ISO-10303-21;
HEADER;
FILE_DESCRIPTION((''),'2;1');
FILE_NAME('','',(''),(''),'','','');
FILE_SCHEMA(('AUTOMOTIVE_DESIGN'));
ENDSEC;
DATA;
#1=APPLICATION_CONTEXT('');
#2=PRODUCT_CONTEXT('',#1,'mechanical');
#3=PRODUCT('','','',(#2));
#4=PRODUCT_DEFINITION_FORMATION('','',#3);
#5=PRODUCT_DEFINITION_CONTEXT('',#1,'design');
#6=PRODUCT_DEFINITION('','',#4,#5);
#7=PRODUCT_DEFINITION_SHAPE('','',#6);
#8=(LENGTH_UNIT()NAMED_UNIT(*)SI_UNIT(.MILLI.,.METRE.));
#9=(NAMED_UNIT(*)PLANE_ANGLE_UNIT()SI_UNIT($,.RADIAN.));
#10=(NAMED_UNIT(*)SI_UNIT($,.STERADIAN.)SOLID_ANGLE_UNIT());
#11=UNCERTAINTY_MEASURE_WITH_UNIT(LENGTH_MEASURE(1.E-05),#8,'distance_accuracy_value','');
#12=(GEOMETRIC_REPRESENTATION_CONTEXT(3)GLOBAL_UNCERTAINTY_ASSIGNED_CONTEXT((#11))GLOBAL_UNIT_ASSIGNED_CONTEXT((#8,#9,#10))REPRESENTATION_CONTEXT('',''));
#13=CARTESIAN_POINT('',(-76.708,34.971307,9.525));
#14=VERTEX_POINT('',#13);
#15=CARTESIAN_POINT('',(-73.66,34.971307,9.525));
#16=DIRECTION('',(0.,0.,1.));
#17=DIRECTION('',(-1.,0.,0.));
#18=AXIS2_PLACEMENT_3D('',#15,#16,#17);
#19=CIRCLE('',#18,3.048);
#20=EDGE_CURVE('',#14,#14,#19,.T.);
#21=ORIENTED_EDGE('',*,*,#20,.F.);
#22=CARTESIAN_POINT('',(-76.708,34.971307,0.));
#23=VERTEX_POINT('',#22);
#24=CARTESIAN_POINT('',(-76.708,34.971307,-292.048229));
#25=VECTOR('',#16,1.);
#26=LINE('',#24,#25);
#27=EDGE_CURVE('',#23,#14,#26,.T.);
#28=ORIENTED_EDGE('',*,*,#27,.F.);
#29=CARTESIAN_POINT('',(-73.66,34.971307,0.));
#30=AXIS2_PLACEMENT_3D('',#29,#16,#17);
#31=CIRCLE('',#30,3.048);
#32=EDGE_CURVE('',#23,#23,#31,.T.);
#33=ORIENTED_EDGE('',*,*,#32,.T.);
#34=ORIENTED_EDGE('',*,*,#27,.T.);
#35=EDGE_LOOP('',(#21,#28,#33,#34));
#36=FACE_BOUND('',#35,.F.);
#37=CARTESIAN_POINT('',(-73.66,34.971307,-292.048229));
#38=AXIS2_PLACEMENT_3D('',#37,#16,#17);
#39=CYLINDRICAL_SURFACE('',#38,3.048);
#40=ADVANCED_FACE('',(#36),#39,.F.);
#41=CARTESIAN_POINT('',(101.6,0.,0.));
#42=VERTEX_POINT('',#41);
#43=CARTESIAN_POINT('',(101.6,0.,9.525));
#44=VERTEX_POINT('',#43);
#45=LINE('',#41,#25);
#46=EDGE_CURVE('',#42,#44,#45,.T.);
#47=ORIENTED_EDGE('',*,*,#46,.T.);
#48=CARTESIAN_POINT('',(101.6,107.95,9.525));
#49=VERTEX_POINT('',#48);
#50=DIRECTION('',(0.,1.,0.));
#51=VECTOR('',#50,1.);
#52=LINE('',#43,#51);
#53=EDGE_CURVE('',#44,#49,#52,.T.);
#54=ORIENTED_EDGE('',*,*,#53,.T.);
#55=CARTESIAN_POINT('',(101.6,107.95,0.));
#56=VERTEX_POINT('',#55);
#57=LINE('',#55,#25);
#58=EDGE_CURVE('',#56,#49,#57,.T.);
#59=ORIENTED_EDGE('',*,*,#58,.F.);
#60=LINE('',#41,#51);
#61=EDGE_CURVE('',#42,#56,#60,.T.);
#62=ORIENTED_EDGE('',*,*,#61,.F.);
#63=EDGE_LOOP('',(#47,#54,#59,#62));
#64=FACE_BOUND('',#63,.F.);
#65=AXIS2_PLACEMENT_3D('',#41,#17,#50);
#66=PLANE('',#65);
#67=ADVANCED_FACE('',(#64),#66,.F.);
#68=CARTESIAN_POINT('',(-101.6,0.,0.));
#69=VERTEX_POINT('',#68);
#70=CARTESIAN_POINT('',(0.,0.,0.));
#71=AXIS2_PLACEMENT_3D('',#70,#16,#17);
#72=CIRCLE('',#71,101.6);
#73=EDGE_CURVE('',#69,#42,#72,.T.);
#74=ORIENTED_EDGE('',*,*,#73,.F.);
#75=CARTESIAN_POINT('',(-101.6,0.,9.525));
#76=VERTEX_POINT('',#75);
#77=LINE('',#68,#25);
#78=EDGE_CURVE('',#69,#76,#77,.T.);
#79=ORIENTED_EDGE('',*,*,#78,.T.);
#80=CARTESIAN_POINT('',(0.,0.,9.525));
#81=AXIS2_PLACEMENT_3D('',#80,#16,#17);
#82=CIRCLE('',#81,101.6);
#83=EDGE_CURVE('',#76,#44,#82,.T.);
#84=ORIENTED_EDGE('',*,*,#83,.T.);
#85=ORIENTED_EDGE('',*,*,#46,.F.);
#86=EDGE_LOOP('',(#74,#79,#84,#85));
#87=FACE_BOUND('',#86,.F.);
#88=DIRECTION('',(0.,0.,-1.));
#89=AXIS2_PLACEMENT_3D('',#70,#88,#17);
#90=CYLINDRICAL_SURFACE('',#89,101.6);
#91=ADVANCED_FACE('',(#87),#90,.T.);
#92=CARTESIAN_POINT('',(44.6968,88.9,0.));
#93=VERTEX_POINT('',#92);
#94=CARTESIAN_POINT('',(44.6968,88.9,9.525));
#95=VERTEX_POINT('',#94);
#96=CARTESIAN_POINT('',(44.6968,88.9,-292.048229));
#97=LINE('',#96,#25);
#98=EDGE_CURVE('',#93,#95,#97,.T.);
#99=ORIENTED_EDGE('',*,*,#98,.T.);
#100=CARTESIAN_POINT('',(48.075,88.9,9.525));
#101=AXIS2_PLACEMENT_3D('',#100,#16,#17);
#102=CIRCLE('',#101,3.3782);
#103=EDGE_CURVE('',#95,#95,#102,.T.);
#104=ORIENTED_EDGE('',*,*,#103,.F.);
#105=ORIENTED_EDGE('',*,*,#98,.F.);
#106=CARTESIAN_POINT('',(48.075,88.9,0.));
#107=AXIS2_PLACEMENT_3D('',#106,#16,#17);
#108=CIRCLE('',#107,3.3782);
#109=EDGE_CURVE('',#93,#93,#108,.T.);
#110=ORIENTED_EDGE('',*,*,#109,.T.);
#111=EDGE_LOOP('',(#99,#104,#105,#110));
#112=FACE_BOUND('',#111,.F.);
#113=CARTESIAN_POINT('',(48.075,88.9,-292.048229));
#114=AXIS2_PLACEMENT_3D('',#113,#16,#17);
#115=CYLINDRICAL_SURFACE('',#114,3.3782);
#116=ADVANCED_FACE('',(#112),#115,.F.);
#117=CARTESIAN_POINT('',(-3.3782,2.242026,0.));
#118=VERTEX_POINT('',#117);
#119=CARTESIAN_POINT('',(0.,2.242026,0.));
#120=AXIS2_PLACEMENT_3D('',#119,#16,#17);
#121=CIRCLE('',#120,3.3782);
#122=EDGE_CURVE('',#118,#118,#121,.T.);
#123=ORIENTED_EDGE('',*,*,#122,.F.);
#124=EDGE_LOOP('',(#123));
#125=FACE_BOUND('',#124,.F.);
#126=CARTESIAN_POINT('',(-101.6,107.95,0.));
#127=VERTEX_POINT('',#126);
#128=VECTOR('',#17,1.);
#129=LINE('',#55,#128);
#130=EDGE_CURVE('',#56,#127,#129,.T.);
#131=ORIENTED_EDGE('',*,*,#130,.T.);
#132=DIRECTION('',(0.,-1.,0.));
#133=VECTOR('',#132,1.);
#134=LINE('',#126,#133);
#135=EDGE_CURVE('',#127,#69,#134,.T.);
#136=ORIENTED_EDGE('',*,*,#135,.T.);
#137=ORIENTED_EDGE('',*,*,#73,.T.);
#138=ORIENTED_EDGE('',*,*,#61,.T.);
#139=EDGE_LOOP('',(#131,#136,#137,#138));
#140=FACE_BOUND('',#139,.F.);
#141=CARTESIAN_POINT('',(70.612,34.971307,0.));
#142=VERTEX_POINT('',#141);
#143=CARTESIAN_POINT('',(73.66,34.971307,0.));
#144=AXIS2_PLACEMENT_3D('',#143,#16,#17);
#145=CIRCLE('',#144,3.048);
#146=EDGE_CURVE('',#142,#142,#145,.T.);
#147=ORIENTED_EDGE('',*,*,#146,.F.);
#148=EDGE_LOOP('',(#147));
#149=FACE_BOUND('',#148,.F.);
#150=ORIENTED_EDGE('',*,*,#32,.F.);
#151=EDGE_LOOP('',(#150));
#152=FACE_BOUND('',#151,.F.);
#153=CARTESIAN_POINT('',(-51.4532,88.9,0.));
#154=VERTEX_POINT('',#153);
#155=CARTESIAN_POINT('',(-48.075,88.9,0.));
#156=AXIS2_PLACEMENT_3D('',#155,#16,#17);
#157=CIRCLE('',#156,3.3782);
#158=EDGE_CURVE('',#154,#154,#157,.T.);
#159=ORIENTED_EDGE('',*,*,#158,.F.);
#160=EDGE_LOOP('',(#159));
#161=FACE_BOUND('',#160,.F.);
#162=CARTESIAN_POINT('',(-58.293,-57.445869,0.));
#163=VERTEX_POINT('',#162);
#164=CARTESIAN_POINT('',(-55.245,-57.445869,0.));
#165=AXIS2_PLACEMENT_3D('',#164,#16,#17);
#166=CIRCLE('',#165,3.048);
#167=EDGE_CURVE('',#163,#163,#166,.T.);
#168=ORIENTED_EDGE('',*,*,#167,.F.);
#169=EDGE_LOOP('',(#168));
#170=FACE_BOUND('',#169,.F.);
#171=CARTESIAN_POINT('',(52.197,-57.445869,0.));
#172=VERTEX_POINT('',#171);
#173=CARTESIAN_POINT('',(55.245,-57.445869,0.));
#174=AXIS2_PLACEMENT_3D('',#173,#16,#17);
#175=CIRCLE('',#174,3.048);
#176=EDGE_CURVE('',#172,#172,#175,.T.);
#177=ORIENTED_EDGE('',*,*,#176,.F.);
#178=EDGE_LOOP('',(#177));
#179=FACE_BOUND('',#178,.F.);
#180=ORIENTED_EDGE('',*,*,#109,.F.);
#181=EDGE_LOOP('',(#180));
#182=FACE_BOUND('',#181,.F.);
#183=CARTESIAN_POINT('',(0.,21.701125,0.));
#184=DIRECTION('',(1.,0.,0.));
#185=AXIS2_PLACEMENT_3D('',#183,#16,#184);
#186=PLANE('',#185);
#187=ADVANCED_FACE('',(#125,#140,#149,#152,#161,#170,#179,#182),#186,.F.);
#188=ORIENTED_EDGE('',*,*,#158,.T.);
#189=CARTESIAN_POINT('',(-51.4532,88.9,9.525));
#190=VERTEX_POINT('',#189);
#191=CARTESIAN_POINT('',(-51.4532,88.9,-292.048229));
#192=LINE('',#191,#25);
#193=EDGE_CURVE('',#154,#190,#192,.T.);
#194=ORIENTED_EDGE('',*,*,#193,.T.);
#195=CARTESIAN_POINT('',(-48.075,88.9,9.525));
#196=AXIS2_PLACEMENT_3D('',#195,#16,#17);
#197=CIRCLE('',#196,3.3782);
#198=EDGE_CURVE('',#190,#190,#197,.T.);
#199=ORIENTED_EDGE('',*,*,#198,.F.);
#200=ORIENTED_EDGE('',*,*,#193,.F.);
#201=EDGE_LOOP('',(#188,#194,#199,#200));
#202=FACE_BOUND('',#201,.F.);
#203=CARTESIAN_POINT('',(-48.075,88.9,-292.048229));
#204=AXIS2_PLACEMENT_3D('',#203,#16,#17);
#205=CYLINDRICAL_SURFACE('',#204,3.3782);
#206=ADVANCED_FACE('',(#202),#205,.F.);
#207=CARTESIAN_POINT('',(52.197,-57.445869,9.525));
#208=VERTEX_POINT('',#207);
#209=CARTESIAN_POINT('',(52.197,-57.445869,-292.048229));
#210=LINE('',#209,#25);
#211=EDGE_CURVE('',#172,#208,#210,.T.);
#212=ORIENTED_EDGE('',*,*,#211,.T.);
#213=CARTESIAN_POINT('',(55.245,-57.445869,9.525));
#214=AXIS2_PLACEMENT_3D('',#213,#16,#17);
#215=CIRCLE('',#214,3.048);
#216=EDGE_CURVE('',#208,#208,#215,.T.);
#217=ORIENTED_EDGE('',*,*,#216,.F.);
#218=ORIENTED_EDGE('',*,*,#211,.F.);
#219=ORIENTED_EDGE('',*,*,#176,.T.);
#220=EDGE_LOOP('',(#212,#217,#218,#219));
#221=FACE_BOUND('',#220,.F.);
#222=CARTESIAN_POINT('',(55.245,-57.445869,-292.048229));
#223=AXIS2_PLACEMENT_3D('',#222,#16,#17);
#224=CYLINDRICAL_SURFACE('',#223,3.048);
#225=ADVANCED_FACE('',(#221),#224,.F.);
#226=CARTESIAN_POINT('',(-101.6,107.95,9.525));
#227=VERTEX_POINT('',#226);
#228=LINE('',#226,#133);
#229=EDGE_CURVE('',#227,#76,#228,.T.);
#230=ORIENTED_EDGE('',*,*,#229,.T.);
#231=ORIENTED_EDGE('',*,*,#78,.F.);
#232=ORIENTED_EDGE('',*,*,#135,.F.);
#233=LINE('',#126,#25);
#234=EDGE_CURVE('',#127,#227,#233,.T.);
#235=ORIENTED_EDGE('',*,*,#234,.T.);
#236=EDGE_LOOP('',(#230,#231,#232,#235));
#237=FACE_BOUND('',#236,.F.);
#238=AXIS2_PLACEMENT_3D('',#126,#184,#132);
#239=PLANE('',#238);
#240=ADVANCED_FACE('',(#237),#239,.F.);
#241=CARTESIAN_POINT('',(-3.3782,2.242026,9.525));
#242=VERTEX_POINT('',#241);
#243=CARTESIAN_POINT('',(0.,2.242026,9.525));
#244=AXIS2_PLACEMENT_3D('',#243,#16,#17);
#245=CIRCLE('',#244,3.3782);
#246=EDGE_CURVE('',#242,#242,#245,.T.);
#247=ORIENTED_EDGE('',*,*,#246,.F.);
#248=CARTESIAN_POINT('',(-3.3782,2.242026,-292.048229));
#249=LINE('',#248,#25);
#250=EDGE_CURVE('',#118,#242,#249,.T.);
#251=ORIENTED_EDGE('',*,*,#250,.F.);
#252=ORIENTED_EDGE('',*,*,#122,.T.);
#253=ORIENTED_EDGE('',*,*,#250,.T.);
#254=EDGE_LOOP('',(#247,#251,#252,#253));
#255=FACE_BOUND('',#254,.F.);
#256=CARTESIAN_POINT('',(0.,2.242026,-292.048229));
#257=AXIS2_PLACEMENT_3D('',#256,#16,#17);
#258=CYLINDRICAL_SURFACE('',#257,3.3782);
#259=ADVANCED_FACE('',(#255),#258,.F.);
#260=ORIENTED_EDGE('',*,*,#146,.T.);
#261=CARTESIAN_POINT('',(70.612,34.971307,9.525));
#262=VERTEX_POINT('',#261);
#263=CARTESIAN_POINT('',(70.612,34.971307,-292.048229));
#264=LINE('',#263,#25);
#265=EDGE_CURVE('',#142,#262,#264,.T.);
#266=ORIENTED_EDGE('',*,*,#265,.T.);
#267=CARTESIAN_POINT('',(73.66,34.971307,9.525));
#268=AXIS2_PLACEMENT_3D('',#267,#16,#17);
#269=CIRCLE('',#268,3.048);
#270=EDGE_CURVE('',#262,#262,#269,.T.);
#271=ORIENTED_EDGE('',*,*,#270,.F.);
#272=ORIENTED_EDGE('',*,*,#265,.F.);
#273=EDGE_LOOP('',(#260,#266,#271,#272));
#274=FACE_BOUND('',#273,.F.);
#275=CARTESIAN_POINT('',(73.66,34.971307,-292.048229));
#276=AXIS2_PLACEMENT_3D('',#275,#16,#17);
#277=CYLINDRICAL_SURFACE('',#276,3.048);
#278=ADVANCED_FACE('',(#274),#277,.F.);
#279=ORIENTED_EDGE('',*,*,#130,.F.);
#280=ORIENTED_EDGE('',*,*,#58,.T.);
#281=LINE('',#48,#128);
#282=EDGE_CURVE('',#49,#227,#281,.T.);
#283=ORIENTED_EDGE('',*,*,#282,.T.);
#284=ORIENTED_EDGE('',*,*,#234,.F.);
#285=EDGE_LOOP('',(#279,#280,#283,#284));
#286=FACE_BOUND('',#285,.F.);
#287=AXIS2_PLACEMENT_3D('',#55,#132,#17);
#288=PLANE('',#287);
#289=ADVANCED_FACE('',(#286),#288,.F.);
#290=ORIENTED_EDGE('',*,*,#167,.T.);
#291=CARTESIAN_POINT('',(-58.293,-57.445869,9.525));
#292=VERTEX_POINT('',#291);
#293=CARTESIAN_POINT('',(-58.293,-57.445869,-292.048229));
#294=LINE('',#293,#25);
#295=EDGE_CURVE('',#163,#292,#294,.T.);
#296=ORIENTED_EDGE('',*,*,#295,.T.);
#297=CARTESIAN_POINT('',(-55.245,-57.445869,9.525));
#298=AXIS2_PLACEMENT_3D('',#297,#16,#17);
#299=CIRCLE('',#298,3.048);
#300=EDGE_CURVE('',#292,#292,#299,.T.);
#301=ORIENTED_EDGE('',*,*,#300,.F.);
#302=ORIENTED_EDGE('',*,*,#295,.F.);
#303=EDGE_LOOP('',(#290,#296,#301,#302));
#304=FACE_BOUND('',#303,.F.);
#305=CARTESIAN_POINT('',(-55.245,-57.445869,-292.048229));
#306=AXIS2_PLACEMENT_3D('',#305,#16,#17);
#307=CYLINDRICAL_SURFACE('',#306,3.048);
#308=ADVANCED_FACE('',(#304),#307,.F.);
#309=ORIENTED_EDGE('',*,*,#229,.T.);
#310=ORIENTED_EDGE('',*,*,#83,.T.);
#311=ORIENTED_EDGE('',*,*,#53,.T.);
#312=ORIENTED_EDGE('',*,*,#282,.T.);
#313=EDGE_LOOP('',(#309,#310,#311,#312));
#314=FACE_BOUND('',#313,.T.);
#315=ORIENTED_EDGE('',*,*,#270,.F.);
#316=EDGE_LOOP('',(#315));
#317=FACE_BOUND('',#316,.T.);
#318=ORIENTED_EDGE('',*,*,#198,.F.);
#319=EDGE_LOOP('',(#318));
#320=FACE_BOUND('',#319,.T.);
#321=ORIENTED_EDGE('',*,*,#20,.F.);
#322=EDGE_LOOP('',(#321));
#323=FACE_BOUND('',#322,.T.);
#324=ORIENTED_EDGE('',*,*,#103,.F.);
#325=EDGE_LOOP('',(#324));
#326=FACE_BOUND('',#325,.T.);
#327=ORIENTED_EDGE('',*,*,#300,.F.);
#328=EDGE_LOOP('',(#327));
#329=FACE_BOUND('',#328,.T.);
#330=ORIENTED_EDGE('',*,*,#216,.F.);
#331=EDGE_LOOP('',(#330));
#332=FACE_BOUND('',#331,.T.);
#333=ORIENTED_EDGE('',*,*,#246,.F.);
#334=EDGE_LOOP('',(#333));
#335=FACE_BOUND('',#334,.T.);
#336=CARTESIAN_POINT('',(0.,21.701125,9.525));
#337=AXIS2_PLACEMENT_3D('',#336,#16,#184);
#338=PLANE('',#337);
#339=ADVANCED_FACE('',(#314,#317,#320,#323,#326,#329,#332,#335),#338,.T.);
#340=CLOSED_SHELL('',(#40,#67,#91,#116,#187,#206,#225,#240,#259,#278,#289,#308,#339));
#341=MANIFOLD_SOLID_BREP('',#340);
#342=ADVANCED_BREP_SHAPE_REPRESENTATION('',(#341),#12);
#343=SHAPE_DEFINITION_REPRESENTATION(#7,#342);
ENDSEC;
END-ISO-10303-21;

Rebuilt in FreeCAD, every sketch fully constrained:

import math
import FreeCAD as App
import Part
import Sketcher
Q = App.Units.Quantity

doc = App.newDocument("Part")
body = doc.addObject("PartDesign::Body", "Body")

sketch1 = doc.addObject("Sketcher::SketchObject", "Sketch")
body.addObject(sketch1)
sketch1.AttachmentSupport = (doc.XY_Plane, [""])
sketch1.MapMode = "FlatFace"
sketch1.addGeometry(Part.LineSegment(App.Vector(-102, 108, 0), App.Vector(-102, 0, 0)), False)
sketch1.addGeometry(Part.ArcOfCircle(Part.Circle(App.Vector(0, 0, 0), App.Vector(0, 0, 1), 102), math.radians(180), math.radians(360)), False)
sketch1.addGeometry(Part.LineSegment(App.Vector(102, 0, 0), App.Vector(102, 108, 0)), False)
sketch1.addGeometry(Part.LineSegment(App.Vector(102, 108, 0), App.Vector(-102, 108, 0)), False)
sketch1.addConstraint(Sketcher.Constraint("Tangent", 0, 2, 1, 1))
sketch1.addConstraint(Sketcher.Constraint("Tangent", 1, 2, 2, 1))
sketch1.addConstraint(Sketcher.Constraint("Coincident", 2, 2, 3, 1))
sketch1.addConstraint(Sketcher.Constraint("Coincident", 3, 2, 0, 1))
sketch1.addConstraint(Sketcher.Constraint("Vertical", 0))
sketch1.addConstraint(Sketcher.Constraint("Vertical", 2))
sketch1.addConstraint(Sketcher.Constraint("Horizontal", 3))
sketch1.addConstraint(Sketcher.Constraint("Coincident", 1, 3, -1, 1))
sketch1.addConstraint(Sketcher.Constraint("Radius", 1, Q("4 in")))
sketch1.addConstraint(Sketcher.Constraint("DistanceY", 0, 2, 0, 1, Q("4.25 in")))
pad1 = doc.addObject("PartDesign::Pad", "Pad")
body.addObject(pad1)
pad1.Profile = sketch1
pad1.Length = Q("0.375 in")

sketch2 = doc.addObject("Sketcher::SketchObject", "Sketch001")
body.addObject(sketch2)
sketch2.AttachmentSupport = (doc.XY_Plane, [""])
sketch2.MapMode = "FlatFace"
sketch2.addGeometry(Part.Circle(App.Vector(-73.7, 35, 0), App.Vector(0, 0, 1), 3), False)
sketch2.addGeometry(Part.Circle(App.Vector(73.7, 35, 0), App.Vector(0, 0, 1), 3), False)
sketch2.addGeometry(Part.Circle(App.Vector(-55.2, -57.4, 0), App.Vector(0, 0, 1), 3), False)
sketch2.addGeometry(Part.Circle(App.Vector(55.2, -57.4, 0), App.Vector(0, 0, 1), 3), False)
sketch2.addConstraint(Sketcher.Constraint("Equal", 0, 1))
sketch2.addConstraint(Sketcher.Constraint("Equal", 1, 2))
sketch2.addConstraint(Sketcher.Constraint("Equal", 2, 3))
sketch2.addConstraint(Sketcher.Constraint("Symmetric", 0, 3, 1, 3, -2))
sketch2.addConstraint(Sketcher.Constraint("Symmetric", 2, 3, 3, 3, -2))
sketch2.addConstraint(Sketcher.Constraint("Diameter", 0, Q("0.24 in")))
sketch2.addConstraint(Sketcher.Constraint("DistanceX", 0, 3, -1, 1, Q("2.9 in")))
sketch2.addConstraint(Sketcher.Constraint("DistanceX", 2, 3, 3, 3, Q("4.35 in")))
sketch2.addConstraint(Sketcher.Constraint("DistanceY", 2, 3, -1, 1, Q("57.445869 mm")))
sketch2.addConstraint(Sketcher.Constraint("DistanceY", -1, 1, 0, 3, Q("34.971307 mm")))
doc.recompute()
hole = doc.addObject("PartDesign::Hole", "Hole")
body.addObject(hole)
hole.Profile = sketch2
hole.ThreadType = "None"
hole.Diameter = Q("0.24 in")
hole.DepthType = "ThroughAll"
hole.Reversed = True

sketch3 = doc.addObject("Sketcher::SketchObject", "Sketch002")
body.addObject(sketch3)
sketch3.AttachmentSupport = (doc.XY_Plane, [""])
sketch3.MapMode = "FlatFace"
sketch3.addGeometry(Part.Circle(App.Vector(-48.1, 88.9, 0), App.Vector(0, 0, 1), 3.4), False)
sketch3.addGeometry(Part.Circle(App.Vector(0, 2.2, 0), App.Vector(0, 0, 1), 3.4), False)
sketch3.addGeometry(Part.Circle(App.Vector(48.1, 88.9, 0), App.Vector(0, 0, 1), 3.4), False)
sketch3.addConstraint(Sketcher.Constraint("Equal", 0, 1))
sketch3.addConstraint(Sketcher.Constraint("Equal", 1, 2))
sketch3.addConstraint(Sketcher.Constraint("Symmetric", 0, 3, 2, 3, -2))
sketch3.addConstraint(Sketcher.Constraint("PointOnObject", 1, 3, -2))
sketch3.addConstraint(Sketcher.Constraint("Diameter", 0, Q("0.266 in")))
sketch3.addConstraint(Sketcher.Constraint("DistanceY", -1, 1, 0, 3, Q("3.5 in")))
sketch3.addConstraint(Sketcher.Constraint("DistanceX", 0, 3, -1, 1, Q("48.075 mm")))
sketch3.addConstraint(Sketcher.Constraint("DistanceY", -1, 1, 1, 3, Q("2.242026 mm")))
doc.recompute()
hole2 = doc.addObject("PartDesign::Hole", "Hole001")
body.addObject(hole2)
hole2.Profile = sketch3
hole2.ThreadType = "None"
hole2.Diameter = Q("0.266 in")
hole2.DepthType = "ThroughAll"
hole2.Reversed = True

doc.recompute()
